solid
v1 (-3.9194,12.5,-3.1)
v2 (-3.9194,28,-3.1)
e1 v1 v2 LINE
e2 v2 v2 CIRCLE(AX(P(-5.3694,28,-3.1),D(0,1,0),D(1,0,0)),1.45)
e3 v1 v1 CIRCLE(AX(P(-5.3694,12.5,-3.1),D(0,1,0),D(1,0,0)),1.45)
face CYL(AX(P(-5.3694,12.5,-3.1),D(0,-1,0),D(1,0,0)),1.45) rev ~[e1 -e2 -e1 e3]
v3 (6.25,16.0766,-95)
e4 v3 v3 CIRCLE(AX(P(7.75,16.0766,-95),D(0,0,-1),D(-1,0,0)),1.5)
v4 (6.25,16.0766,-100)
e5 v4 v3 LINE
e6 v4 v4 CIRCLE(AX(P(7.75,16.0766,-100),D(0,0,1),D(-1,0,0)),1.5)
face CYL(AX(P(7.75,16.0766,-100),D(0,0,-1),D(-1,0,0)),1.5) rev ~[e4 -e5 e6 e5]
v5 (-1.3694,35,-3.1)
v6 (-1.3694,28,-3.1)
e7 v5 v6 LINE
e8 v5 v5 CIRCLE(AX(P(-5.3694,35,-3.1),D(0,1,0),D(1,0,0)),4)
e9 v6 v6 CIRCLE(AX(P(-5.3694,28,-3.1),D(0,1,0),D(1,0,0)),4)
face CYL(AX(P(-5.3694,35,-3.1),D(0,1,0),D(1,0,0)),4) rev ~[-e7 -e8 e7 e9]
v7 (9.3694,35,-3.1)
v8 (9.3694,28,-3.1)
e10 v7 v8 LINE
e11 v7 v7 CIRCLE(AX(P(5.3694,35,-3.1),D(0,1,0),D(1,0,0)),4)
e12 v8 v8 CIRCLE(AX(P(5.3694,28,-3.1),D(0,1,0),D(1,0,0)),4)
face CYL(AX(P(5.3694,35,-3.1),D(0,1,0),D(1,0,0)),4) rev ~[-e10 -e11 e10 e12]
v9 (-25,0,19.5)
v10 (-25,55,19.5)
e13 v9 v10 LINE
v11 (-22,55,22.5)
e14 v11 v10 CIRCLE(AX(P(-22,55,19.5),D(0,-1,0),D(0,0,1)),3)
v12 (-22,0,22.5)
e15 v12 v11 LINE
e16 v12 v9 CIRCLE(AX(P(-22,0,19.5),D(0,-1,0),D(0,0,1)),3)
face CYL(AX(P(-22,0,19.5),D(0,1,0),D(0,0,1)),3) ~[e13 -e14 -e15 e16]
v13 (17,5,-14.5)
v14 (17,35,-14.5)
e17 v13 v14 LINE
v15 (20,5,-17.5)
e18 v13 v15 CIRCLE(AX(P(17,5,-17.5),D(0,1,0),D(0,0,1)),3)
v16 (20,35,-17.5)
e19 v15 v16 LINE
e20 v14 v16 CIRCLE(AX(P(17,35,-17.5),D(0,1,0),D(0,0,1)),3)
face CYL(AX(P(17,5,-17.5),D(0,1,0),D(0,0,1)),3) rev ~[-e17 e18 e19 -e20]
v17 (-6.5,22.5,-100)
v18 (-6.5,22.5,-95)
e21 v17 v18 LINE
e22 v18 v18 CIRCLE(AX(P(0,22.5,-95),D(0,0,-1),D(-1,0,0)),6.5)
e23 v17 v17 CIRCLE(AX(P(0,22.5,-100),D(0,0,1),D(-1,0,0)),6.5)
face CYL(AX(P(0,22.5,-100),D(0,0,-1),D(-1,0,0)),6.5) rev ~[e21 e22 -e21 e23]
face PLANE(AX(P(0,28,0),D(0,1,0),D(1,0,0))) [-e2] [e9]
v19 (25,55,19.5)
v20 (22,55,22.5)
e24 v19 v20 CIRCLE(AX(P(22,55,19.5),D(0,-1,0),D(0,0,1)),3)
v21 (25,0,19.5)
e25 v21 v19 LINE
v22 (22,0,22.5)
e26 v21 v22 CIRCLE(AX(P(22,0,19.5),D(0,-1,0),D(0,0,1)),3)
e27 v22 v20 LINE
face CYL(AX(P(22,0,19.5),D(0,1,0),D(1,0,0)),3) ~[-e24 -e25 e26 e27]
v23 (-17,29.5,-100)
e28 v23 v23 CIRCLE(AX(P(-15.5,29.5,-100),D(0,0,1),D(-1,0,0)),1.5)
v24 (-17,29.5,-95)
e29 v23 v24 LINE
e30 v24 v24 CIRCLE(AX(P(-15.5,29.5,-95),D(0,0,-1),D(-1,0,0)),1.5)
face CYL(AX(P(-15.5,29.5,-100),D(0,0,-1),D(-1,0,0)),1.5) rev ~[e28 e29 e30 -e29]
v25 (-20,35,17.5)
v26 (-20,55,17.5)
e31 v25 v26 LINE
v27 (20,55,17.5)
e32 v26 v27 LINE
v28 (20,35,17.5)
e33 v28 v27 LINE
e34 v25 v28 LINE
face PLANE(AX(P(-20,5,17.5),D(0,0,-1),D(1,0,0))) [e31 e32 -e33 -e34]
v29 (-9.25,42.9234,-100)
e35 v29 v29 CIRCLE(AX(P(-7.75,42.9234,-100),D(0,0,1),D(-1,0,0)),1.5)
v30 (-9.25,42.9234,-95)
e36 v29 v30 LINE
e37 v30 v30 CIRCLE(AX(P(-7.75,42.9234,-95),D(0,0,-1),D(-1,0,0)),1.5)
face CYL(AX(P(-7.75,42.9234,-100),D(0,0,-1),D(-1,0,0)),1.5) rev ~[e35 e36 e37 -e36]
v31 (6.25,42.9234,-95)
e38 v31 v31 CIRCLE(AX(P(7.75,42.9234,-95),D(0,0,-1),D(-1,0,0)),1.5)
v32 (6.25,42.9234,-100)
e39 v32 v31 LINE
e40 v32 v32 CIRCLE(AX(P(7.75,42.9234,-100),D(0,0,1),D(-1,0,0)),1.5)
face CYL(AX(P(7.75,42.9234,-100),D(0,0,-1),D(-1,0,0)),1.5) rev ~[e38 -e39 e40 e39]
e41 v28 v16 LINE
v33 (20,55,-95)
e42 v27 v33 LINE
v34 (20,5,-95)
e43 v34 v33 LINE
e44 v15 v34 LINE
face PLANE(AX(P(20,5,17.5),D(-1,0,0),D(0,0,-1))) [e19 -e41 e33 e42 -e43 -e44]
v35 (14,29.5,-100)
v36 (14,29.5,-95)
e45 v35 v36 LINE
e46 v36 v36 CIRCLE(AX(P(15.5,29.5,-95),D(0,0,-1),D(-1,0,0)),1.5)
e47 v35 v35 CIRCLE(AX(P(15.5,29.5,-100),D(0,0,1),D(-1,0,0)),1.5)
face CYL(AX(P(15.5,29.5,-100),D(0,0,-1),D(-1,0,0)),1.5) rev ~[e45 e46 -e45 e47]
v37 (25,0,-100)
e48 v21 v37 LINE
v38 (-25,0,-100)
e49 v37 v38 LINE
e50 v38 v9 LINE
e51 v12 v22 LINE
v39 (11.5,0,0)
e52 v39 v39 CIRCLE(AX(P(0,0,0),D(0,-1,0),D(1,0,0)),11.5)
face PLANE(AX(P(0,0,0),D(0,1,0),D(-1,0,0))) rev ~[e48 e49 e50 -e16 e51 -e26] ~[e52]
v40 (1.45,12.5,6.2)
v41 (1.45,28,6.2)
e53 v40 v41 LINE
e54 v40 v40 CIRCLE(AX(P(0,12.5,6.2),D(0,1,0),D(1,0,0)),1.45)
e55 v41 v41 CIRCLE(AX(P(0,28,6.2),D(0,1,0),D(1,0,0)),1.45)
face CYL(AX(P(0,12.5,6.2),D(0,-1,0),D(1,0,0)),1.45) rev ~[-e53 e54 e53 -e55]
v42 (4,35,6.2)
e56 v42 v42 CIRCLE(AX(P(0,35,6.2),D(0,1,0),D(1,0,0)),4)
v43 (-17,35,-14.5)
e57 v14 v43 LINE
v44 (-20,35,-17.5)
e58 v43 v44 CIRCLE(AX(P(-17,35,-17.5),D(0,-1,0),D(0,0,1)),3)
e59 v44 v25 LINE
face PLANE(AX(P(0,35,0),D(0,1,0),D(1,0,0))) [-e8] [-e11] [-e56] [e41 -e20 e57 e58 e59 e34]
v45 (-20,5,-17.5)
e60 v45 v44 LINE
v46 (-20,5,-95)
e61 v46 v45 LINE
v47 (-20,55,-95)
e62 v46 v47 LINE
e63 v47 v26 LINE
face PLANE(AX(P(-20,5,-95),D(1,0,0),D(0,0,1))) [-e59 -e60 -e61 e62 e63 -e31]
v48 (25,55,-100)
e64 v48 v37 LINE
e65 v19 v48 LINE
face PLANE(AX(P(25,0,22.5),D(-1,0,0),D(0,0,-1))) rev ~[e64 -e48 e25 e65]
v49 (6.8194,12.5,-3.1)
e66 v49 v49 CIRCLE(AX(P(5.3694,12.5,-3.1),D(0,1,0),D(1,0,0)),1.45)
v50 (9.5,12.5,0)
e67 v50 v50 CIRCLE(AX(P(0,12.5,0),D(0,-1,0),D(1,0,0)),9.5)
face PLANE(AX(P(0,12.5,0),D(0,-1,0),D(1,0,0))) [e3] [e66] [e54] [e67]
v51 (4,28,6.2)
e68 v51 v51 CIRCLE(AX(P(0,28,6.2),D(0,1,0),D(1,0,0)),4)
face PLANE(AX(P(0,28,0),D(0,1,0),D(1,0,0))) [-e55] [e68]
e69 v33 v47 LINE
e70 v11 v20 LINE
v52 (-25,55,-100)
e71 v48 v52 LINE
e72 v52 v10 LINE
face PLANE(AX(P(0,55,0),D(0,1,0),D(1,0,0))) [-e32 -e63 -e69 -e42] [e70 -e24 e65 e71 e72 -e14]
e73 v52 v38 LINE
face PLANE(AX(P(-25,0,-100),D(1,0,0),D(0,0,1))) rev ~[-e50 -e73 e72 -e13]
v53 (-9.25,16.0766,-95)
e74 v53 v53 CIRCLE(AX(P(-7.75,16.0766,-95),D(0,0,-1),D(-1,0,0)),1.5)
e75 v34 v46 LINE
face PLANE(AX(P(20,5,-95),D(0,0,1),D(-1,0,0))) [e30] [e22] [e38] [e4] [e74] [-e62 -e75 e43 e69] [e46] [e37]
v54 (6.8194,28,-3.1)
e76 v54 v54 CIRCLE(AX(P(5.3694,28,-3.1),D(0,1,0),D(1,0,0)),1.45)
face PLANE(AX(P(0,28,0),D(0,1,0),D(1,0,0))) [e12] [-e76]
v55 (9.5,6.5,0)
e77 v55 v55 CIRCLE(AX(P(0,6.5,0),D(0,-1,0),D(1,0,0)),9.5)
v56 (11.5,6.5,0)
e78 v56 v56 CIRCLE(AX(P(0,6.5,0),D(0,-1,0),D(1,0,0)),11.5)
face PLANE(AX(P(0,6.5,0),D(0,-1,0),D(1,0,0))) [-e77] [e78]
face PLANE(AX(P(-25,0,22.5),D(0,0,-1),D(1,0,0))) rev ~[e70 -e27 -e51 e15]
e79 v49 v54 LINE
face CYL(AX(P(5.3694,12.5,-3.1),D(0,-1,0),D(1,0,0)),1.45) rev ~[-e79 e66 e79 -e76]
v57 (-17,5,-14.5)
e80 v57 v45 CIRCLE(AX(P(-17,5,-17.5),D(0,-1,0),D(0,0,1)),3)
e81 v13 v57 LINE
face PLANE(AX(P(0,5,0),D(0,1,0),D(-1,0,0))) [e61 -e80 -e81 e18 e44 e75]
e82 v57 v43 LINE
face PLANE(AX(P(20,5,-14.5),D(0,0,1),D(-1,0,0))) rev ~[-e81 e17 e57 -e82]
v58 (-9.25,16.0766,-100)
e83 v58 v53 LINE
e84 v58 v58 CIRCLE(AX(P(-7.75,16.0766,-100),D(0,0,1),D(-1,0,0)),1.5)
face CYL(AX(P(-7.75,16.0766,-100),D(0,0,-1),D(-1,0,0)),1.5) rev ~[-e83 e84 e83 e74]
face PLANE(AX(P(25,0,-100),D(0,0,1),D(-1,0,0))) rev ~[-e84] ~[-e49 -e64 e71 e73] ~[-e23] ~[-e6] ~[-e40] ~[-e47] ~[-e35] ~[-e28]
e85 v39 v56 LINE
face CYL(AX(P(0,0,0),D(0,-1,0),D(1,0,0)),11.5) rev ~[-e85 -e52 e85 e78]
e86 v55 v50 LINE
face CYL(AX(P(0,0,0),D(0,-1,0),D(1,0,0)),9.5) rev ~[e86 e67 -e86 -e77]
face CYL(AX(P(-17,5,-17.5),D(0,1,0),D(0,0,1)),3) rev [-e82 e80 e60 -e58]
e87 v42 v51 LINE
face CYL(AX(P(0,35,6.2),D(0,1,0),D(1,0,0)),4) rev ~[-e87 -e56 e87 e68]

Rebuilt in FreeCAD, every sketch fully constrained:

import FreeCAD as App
import Part
import Sketcher
from FreeCAD import Vector
Q = App.Units.Quantity


def edges_at(feature, points):
    """Names of the edges that pass closest to the given points."""
    edges = feature.Shape.Edges
    near = lambda p: min(range(len(edges)), key=lambda i: edges[i].distToShape(Part.Vertex(*p))[0])
    return sorted({f"Edge{near(p) + 1}" for p in points})


def add_polygon(sketch, points):
    """Adds a closed chain of lines whose ends are joined by coincident constraints."""
    first, n = sketch.GeometryCount, len(points)
    for a, b in zip(points, points[1:] + points[:1]):
        sketch.addGeometry(Part.LineSegment(App.Vector(*a, 0), App.Vector(*b, 0)), False)
    for i in range(n):
        sketch.addConstraint(Sketcher.Constraint("Coincident", first + i, 2, first + (i + 1) % n, 1))

doc = App.newDocument("Part")
body = doc.addObject("PartDesign::Body", "Body")

# Sketch on XZ plane
sketch1 = doc.addObject("Sketcher::SketchObject", "Sketch")
body.addObject(sketch1)
sketch1.AttachmentSupport = (doc.XZ_Plane, [""])
sketch1.MapMode = "FlatFace"
add_polygon(sketch1, [(-25, -100), (-25, 22.5), (25, 22.5), (25, -100)])  # lines 0-3
sketch1.addGeometry(Part.Circle(Vector(0, 0, 0), Vector(0, 0, 1), 4), False)  # 4
sketch1.addConstraint(Sketcher.Constraint("Vertical", 0))
sketch1.addConstraint(Sketcher.Constraint("Horizontal", 1))
sketch1.addConstraint(Sketcher.Constraint("Vertical", 2))
sketch1.addConstraint(Sketcher.Constraint("Horizontal", 3))
sketch1.addConstraint(Sketcher.Constraint("Coincident", 4, 3, -1, 1))
sketch1.addConstraint(Sketcher.Constraint("Diameter", 4, Q("8 mm")))
sketch1.addConstraint(Sketcher.Constraint("DistanceX", 1, 1, 1, 2, Q("50 mm")))
sketch1.addConstraint(Sketcher.Constraint("DistanceY", 0, 1, 0, 2, Q("122.5 mm")))
sketch1.addConstraint(Sketcher.Constraint("DistanceX", 0, 2, -1, 1, Q("25 mm")))
sketch1.addConstraint(Sketcher.Constraint("DistanceY", -1, 1, 0, 2, Q("22.5 mm")))
pad1 = doc.addObject("PartDesign::Pad", "Pad")
body.addObject(pad1)
pad1.Profile = sketch1
pad1.Length = 5
pad1.Reversed = True

# Sketch on XZ plane
sketch2 = doc.addObject("Sketcher::SketchObject", "Sketch001")
body.addObject(sketch2)
sketch2.AttachmentSupport = (doc.XZ_Plane, [""])
sketch2.MapMode = "FlatFace"
sketch2.AttachmentOffset = App.Placement(Vector(0, 0, -5), App.Rotation())
add_polygon(sketch2, [(25, -100), (-25, -100), (-25, 22), (25, 22)])  # lines 0-3
add_polygon(sketch2, [(20, 18), (-20, 18), (-20, -95), (20, -95)])  # lines 4-7
sketch2.addConstraint(Sketcher.Constraint("Horizontal", 0))
sketch2.addConstraint(Sketcher.Constraint("Vertical", 1))
sketch2.addConstraint(Sketcher.Constraint("Horizontal", 2))
sketch2.addConstraint(Sketcher.Constraint("Vertical", 3))
sketch2.addConstraint(Sketcher.Constraint("Horizontal", 4))
sketch2.addConstraint(Sketcher.Constraint("Vertical", 5))
sketch2.addConstraint(Sketcher.Constraint("Horizontal", 6))
sketch2.addConstraint(Sketcher.Constraint("Vertical", 7))
sketch2.addConstraint(Sketcher.Constraint("DistanceX", 1, 2, 4, 2, Q("5 mm")))
sketch2.addConstraint(Sketcher.Constraint("DistanceY", 4, 2, 1, 2, Q("5 mm")))
sketch2.addConstraint(Sketcher.Constraint("DistanceY", 0, 2, 5, 2, Q("5 mm")))
sketch2.addConstraint(Sketcher.Constraint("DistanceX", 6, 2, 3, 2, Q("5 mm")))
sketch2.addConstraint(Sketcher.Constraint("DistanceX", 0, 2, 0, 1, Q("50 mm")))
sketch2.addConstraint(Sketcher.Constraint("DistanceY", 1, 1, 1, 2, Q("122.5 mm")))
sketch2.addConstraint(Sketcher.Constraint("DistanceX", 0, 2, -1, 1, Q("25 mm")))
sketch2.addConstraint(Sketcher.Constraint("DistanceY", 0, 2, -1, 1, Q("100 mm")))
pad2 = doc.addObject("PartDesign::Pad", "Pad001")
body.addObject(pad2)
pad2.Profile = sketch2
pad2.Length = 50
pad2.Reversed = True

# Sketch on XZ plane
sketch3 = doc.addObject("Sketcher::SketchObject", "Sketch002")
body.addObject(sketch3)
sketch3.AttachmentSupport = (doc.XZ_Plane, [""])
sketch3.MapMode = "FlatFace"
sketch3.AttachmentOffset = App.Placement(Vector(0, 0, -5), App.Rotation())
add_polygon(sketch3, [(20, -14), (-20, -14), (-20, 18), (20, 18)])  # lines 0-3
sketch3.addConstraint(Sketcher.Constraint("Horizontal", 0))
sketch3.addConstraint(Sketcher.Constraint("Vertical", 1))
sketch3.addConstraint(Sketcher.Constraint("Horizontal", 2))
sketch3.addConstraint(Sketcher.Constraint("Vertical", 3))
sketch3.addConstraint(Sketcher.Constraint("DistanceY", 1, 1, 1, 2, Q("32 mm")))
sketch3.addConstraint(Sketcher.Constraint("DistanceX", 0, 2, 0, 1, Q("40 mm")))
sketch3.addConstraint(Sketcher.Constraint("DistanceX", 0, 2, -1, 1, Q("20 mm")))
sketch3.addConstraint(Sketcher.Constraint("DistanceY", 0, 2, -1, 1, Q("14.5 mm")))
pad3 = doc.addObject("PartDesign::Pad", "Pad002")
body.addObject(pad3)
pad3.Profile = sketch3
pad3.Length = 30
pad3.Reversed = True

# Sketch on XY plane
sketch4 = doc.addObject("Sketcher::SketchObject", "Sketch003")
body.addObject(sketch4)
sketch4.AttachmentSupport = (doc.XY_Plane, [""])
sketch4.MapMode = "FlatFace"
sketch4.AttachmentOffset = App.Placement(Vector(0, 0, -100), App.Rotation())
sketch4.addGeometry(Part.Circle(Vector(0, 22.5, 0), Vector(0, 0, 1), 6.5), False)
sketch4.addGeometry(Part.Circle(Vector(-7.8, 16.1, 0), Vector(0, 0, 1), 1.5), False)
sketch4.addGeometry(Part.Circle(Vector(-15.5, 29.5, 0), Vector(0, 0, 1), 1.5), False)
sketch4.addGeometry(Part.Circle(Vector(15.5, 29.5, 0), Vector(0, 0, 1), 1.5), False)
sketch4.addGeometry(Part.Circle(Vector(-7.8, 42.9, 0), Vector(0, 0, 1), 1.5), False)
sketch4.addGeometry(Part.Circle(Vector(7.8, 42.9, 0), Vector(0, 0, 1), 1.5), False)
sketch4.addGeometry(Part.Circle(Vector(7.8, 16.1, 0), Vector(0, 0, 1), 1.5), False)
sketch4.addConstraint(Sketcher.Constraint("Equal", 1, 2))
sketch4.addConstraint(Sketcher.Constraint("Equal", 2, 3))
sketch4.addConstraint(Sketcher.Constraint("Equal", 3, 4))
sketch4.addConstraint(Sketcher.Constraint("Equal", 4, 5))
sketch4.addConstraint(Sketcher.Constraint("Equal", 5, 6))
sketch4.addConstraint(Sketcher.Constraint("Symmetric", 2, 3, 3, 3, -2))
sketch4.addConstraint(Sketcher.Constraint("Symmetric", 4, 3, 5, 3, -2))
sketch4.addConstraint(Sketcher.Constraint("Symmetric", 1, 3, 6, 3, -2))
sketch4.addConstraint(Sketcher.Constraint("PointOnObject", 0, 3, -2))
sketch4.addConstraint(Sketcher.Constraint("Vertical", 1, 3, 4, 3))
sketch4.addConstraint(Sketcher.Constraint("Diameter", 0, Q("13 mm")))
sketch4.addConstraint(Sketcher.Constraint("Diameter", 1, Q("3 mm")))
sketch4.addConstraint(Sketcher.Constraint("DistanceY", 0, 3, 2, 3, Q("7 mm")))
sketch4.addConstraint(Sketcher.Constraint("DistanceX", 2, 3, 3, 3, Q("31 mm")))
sketch4.addConstraint(Sketcher.Constraint("DistanceY", -1, 1, 0, 3, Q("22.5 mm")))
sketch4.addConstraint(Sketcher.Constraint("DistanceX", 4, 3, 5, 3, Q("15.5 mm")))
sketch4.addConstraint(Sketcher.Constraint("DistanceY", -1, 1, 1, 3, Q("16.0766 mm")))
sketch4.addConstraint(Sketcher.Constraint("DistanceY", -1, 1, 4, 3, Q("42.9234 mm")))
pocket1 = doc.addObject("PartDesign::Pocket", "Pocket")
body.addObject(pocket1)
pocket1.Profile = sketch4
pocket1.Length = 30
pocket1.Reversed = True

# Sketch on XZ plane
sketch5 = doc.addObject("Sketcher::SketchObject", "Sketch004")
body.addObject(sketch5)
sketch5.AttachmentSupport = (doc.XZ_Plane, [""])
sketch5.MapMode = "FlatFace"
sketch5.addGeometry(Part.Circle(Vector(0, 0, 0), Vector(0, 0, 1), 10), False)
sketch5.addConstraint(Sketcher.Constraint("Coincident", 0, 3, -1, 1))
sketch5.addConstraint(Sketcher.Constraint("Diameter", 0, Q("19 mm")))
pocket2 = doc.addObject("PartDesign::Pocket", "Pocket001")
body.addObject(pocket2)
pocket2.Profile = sketch5
pocket2.Length = 12.5

# Sketch on XZ plane
sketch6 = doc.addObject("Sketcher::SketchObject", "Sketch005")
body.addObject(sketch6)
sketch6.AttachmentSupport = (doc.XZ_Plane, [""])
sketch6.MapMode = "FlatFace"
sketch6.addGeometry(Part.Circle(Vector(0, 0, 0), Vector(0, 0, 1), 12), False)
sketch6.addConstraint(Sketcher.Constraint("Coincident", 0, 3, -1, 1))
sketch6.addConstraint(Sketcher.Constraint("Diameter", 0, Q("23 mm")))
pocket3 = doc.addObject("PartDesign::Pocket", "Pocket002")
body.addObject(pocket3)
pocket3.Profile = sketch6
pocket3.Length = 6.5

# Sketch on XZ plane
sketch7 = doc.addObject("Sketcher::SketchObject", "Sketch006")
body.addObject(sketch7)
sketch7.AttachmentSupport = (doc.XZ_Plane, [""])
sketch7.MapMode = "FlatFace"
sketch7.AttachmentOffset = App.Placement(Vector(0, 0, -12.5), App.Rotation())
sketch7.addGeometry(Part.Circle(Vector(0, 6.2, 0), Vector(0, 0, 1), 1.4), False)
sketch7.addGeometry(Part.Circle(Vector(5.4, -3.1, 0), Vector(0, 0, 1), 1.4), False)
sketch7.addGeometry(Part.Circle(Vector(-5.4, -3.1, 0), Vector(0, 0, 1), 1.4), False)
sketch7.addConstraint(Sketcher.Constraint("Equal", 0, 1))
sketch7.addConstraint(Sketcher.Constraint("Equal", 1, 2))
sketch7.addConstraint(Sketcher.Constraint("Symmetric", 1, 3, 2, 3, -2))
sketch7.addConstraint(Sketcher.Constraint("PointOnObject", 0, 3, -2))
sketch7.addConstraint(Sketcher.Constraint("Diameter", 0, Q("2.9 mm")))
sketch7.addConstraint(Sketcher.Constraint("DistanceY", -1, 1, 0, 3, Q("6.2 mm")))
sketch7.addConstraint(Sketcher.Constraint("DistanceY", 1, 3, -1, 1, Q("3.1 mm")))
sketch7.addConstraint(Sketcher.Constraint("DistanceX", -1, 1, 1, 3, Q("5.3694 mm")))
pocket4 = doc.addObject("PartDesign::Pocket", "Pocket003")
body.addObject(pocket4)
pocket4.Profile = sketch7
pocket4.Length = 30
doc.recompute()

fillet = doc.addObject("PartDesign::Fillet", "Fillet")
body.addObject(fillet)
fillet.Base = (pocket4, edges_at(pocket4, [
    (20, 20, -14.5),
    (-20, 20, -14.5),
    (25, 27.5, 22.5),
    (-25, 27.5, 22.5),
]))
fillet.Radius = 3

# Sketch on XZ plane
sketch8 = doc.addObject("Sketcher::SketchObject", "Sketch007")
body.addObject(sketch8)
sketch8.AttachmentSupport = (doc.XZ_Plane, [""])
sketch8.MapMode = "FlatFace"
sketch8.AttachmentOffset = App.Placement(Vector(0, 0, -35), App.Rotation())
sketch8.addGeometry(Part.Circle(Vector(-5.4, -3.1, 0), Vector(0, 0, 1), 4), False)
sketch8.addGeometry(Part.Circle(Vector(-5.4, -3.1, 0), Vector(0, 0, 1), 1.4), False)
sketch8.addGeometry(Part.Circle(Vector(5.4, -3.1, 0), Vector(0, 0, 1), 4), False)
sketch8.addGeometry(Part.Circle(Vector(5.4, -3.1, 0), Vector(0, 0, 1), 1.4), False)
sketch8.addGeometry(Part.Circle(Vector(0, 6.2, 0), Vector(0, 0, 1), 4), False)
sketch8.addGeometry(Part.Circle(Vector(0, 6.2, 0), Vector(0, 0, 1), 1.4), False)
sketch8.addConstraint(Sketcher.Constraint("Coincident", 1, 3, 0, 3))
sketch8.addConstraint(Sketcher.Constraint("Coincident", 3, 3, 2, 3))
sketch8.addConstraint(Sketcher.Constraint("Coincident", 5, 3, 4, 3))
sketch8.addConstraint(Sketcher.Constraint("Equal", 0, 2))
sketch8.addConstraint(Sketcher.Constraint("Equal", 1, 3))
sketch8.addConstraint(Sketcher.Constraint("Equal", 2, 4))
sketch8.addConstraint(Sketcher.Constraint("Equal", 3, 5))
sketch8.addConstraint(Sketcher.Constraint("Symmetric", 0, 3, 2, 3, -2))
sketch8.addConstraint(Sketcher.Constraint("PointOnObject", 4, 3, -2))
sketch8.addConstraint(Sketcher.Constraint("Diameter", 0, Q("8 mm")))
sketch8.addConstraint(Sketcher.Constraint("Diameter", 1, Q("2.9 mm")))
sketch8.addConstraint(Sketcher.Constraint("DistanceY", 0, 3, -1, 1, Q("3.1 mm")))
sketch8.addConstraint(Sketcher.Constraint("DistanceY", -1, 1, 4, 3, Q("6.2 mm")))
sketch8.addConstraint(Sketcher.Constraint("DistanceX", 0, 3, -1, 1, Q("5.3694 mm")))
pocket5 = doc.addObject("PartDesign::Pocket", "Pocket004")
body.addObject(pocket5)
pocket5.Profile = sketch8
pocket5.Length = 7
pocket5.Reversed = True

doc.recompute()
